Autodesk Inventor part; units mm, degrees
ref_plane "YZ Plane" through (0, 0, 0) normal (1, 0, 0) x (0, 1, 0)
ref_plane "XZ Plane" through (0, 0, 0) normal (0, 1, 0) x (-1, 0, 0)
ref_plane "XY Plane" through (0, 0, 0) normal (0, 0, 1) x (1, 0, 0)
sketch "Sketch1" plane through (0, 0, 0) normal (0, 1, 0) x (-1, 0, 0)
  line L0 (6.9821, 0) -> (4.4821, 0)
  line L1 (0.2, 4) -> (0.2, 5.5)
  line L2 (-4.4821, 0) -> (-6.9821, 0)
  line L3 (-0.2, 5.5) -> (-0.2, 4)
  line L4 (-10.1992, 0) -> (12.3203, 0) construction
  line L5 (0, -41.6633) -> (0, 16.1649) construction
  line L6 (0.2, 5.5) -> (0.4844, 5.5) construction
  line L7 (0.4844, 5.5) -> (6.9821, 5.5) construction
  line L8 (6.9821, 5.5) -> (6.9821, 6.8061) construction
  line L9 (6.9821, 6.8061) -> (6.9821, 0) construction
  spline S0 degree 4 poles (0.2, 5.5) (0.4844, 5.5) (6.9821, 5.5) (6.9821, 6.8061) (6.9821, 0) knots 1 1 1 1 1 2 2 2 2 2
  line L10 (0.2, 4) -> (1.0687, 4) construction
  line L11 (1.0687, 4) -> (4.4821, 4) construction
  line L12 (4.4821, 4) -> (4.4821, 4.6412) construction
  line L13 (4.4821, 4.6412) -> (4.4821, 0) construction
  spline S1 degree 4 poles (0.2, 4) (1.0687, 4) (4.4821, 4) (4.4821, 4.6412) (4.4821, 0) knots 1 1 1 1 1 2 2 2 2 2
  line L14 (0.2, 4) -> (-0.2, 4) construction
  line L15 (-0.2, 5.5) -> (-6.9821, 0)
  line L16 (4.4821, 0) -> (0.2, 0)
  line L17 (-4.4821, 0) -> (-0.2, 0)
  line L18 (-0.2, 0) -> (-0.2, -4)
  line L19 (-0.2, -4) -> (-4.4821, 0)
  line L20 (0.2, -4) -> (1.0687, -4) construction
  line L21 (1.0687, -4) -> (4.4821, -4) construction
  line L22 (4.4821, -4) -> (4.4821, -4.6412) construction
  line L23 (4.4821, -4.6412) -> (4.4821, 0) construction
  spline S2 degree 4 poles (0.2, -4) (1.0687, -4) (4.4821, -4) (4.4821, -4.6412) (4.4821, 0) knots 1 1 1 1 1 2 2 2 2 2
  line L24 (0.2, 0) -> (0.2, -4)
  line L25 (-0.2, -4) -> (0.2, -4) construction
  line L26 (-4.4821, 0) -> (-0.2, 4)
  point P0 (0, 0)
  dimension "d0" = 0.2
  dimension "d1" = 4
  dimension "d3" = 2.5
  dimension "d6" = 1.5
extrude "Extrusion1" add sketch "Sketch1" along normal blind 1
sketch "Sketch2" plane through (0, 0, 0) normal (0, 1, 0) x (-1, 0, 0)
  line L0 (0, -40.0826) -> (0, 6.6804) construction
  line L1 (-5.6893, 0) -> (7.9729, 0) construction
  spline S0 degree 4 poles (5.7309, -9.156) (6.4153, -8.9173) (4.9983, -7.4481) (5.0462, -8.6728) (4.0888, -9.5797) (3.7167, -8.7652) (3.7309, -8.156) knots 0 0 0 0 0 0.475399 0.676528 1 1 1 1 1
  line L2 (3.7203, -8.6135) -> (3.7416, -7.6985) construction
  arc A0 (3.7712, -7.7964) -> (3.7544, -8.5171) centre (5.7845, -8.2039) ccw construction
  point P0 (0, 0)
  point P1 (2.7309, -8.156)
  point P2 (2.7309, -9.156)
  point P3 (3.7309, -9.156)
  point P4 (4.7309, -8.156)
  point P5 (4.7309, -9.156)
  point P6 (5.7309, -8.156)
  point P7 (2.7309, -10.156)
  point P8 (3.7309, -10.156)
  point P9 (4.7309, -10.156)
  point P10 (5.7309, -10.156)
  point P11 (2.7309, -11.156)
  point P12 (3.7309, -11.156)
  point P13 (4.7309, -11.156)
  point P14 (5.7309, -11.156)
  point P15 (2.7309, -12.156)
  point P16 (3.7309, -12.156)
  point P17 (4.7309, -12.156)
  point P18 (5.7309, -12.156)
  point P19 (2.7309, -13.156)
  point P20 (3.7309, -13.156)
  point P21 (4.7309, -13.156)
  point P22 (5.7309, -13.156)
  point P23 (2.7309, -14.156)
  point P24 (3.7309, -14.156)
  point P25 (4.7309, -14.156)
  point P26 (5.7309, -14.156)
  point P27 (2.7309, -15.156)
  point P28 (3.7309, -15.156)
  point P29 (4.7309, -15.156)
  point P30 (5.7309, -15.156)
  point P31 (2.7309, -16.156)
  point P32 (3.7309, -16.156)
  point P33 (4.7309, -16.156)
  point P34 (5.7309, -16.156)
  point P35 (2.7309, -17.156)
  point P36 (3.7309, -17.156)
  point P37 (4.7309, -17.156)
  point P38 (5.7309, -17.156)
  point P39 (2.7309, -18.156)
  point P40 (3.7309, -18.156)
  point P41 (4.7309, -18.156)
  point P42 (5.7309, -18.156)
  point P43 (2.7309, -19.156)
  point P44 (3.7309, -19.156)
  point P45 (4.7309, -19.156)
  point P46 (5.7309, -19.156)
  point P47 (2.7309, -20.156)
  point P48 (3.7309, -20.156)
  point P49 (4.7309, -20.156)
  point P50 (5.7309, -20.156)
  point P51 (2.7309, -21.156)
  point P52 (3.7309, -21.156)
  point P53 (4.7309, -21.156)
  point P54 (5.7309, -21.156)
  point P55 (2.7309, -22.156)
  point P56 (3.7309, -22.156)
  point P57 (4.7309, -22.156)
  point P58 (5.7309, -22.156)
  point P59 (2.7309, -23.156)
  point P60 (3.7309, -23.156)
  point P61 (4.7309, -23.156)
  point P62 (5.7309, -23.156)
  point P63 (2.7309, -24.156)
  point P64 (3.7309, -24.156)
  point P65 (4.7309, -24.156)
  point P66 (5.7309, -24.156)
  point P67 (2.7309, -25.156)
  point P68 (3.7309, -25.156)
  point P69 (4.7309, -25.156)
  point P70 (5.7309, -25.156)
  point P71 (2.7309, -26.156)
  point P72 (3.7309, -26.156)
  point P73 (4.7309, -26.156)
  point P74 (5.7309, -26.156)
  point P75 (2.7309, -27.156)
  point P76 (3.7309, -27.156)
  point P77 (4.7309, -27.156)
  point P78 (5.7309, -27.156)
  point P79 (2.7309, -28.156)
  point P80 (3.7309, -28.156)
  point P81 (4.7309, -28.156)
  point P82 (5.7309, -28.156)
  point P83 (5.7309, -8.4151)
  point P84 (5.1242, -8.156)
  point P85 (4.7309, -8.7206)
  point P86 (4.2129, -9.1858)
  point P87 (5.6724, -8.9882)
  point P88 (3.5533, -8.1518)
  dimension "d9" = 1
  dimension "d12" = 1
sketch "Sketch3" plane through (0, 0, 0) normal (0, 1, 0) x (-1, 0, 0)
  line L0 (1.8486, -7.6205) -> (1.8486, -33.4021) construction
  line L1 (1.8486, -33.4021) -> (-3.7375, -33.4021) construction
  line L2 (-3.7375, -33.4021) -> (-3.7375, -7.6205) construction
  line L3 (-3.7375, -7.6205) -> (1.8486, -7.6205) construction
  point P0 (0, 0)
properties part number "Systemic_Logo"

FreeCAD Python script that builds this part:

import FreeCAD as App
import Part
import Sketcher
from FreeCAD import Vector
Q = App.Units.Quantity


def add_polygon(sketch, points):
    """Adds a closed chain of lines whose ends are joined by coincident constraints."""
    first, n = sketch.GeometryCount, len(points)
    for a, b in zip(points, points[1:] + points[:1]):
        sketch.addGeometry(Part.LineSegment(App.Vector(*a, 0), App.Vector(*b, 0)), False)
    for i in range(n):
        sketch.addConstraint(Sketcher.Constraint("Coincident", first + i, 2, first + (i + 1) % n, 1))

doc = App.newDocument("Part")
body = doc.addObject("PartDesign::Body", "Body")
body.AllowCompound = True

# Sketch on XZ plane
sketch1 = body.newObject("Sketcher::SketchObject", "Sketch")
sketch1.AttachmentSupport = (doc.getObject("XZ_Plane"), [""])
sketch1.MapMode = "FlatFace"
sketch1.addGeometry(Part.BSplineCurve([Vector(-0.2, -4, 0), Vector(-1.0687, -4, 0), Vector(-4.4821, -4, 0), Vector(-4.4821, -4.6412, 0), Vector(-4.4821, 0, 0)], [5, 5], [1, 2], False, 4, [1, 1, 1, 1, 1], False), False)  # 0
sketch1.addGeometry(Part.LineSegment(Vector(-4.4821, 0, 0), Vector(-0.2, 0, 0)), False)  # 1
sketch1.addGeometry(Part.LineSegment(Vector(-0.2, 0, 0), Vector(-0.2, -4, 0)), False)  # 2
sketch1.addGeometry(Part.LineSegment(Vector(-4.4821, 0, 0), Vector(-6.9821, 0, 0)), False)  # 3
sketch1.addGeometry(Part.BSplineCurve([Vector(-0.2, 5.5, 0), Vector(-0.4844, 5.5, 0), Vector(-6.9821, 5.5, 0), Vector(-6.9821, 6.8061, 0), Vector(-6.9821, 0, 0)], [5, 5], [1, 2], False, 4, [1, 1, 1, 1, 1], False), False)  # 4
sketch1.addGeometry(Part.LineSegment(Vector(-0.2, 5.5, 0), Vector(-0.2, 4, 0)), False)  # 5
sketch1.addGeometry(Part.BSplineCurve([Vector(-0.2, 4, 0), Vector(-1.0687, 4, 0), Vector(-4.4821, 4, 0), Vector(-4.4821, 4.6412, 0), Vector(-4.4821, 0, 0)], [5, 5], [1, 2], False, 4, [1, 1, 1, 1, 1], False), False)  # 6
add_polygon(sketch1, [(0.2, 0), (4.4821, 0), (0.2, -4)])  # lines 7-9
add_polygon(sketch1, [(6.9821, 0), (4.4821, 0), (0.2, 4), (0.2, 5.5)])  # lines 10-13
sketch1.addConstraint([
    Sketcher.Constraint("Block", 0),
    Sketcher.Constraint("Block", 4),
    Sketcher.Constraint("Block", 6),
    Sketcher.Constraint("Coincident", 0, 2, 1, 1),
    Sketcher.Constraint("Coincident", 1, 2, 2, 1),
    Sketcher.Constraint("Coincident", 2, 2, 0, 1),
    Sketcher.Constraint("Coincident", 3, 2, 4, 2),
    Sketcher.Constraint("Coincident", 4, 1, 5, 1),
    Sketcher.Constraint("Coincident", 5, 2, 6, 1),
    Sketcher.Constraint("Coincident", 6, 2, 3, 1),
    Sketcher.Constraint("Horizontal", 1),
    Sketcher.Constraint("Vertical", 2),
    Sketcher.Constraint("Horizontal", 7),
    Sketcher.Constraint("Vertical", 9),
    Sketcher.Constraint("Horizontal", 10),
    Sketcher.Constraint("Vertical", 12),
    Sketcher.Constraint("Coincident", 10, 2, 7, 2),
    Sketcher.Constraint("PointOnObject", 7, 2, -1),
    Sketcher.Constraint("DistanceY", 9, 1, 9, 2, Q("4 mm")),
    Sketcher.Constraint("DistanceX", 10, 2, 10, 1, Q("2.5 mm")),
    Sketcher.Constraint("DistanceY", 12, 1, 12, 2, Q("1.5 mm")),
    Sketcher.Constraint("DistanceY", -1, 1, 11, 2, Q("4 mm")),
    Sketcher.Constraint("DistanceX", -1, 1, 8, 2, Q("0.2 mm")),
    Sketcher.Constraint("DistanceX", -1, 1, 11, 2, Q("0.2 mm")),
    Sketcher.Constraint("DistanceX", 7, 1, 7, 2, Q("4.282 mm")),
])
pad1 = body.newObject("PartDesign::Pad", "Pad")
pad1.Profile = sketch1
pad1.Length = 1
pad1.Reversed = True

doc.recompute()
